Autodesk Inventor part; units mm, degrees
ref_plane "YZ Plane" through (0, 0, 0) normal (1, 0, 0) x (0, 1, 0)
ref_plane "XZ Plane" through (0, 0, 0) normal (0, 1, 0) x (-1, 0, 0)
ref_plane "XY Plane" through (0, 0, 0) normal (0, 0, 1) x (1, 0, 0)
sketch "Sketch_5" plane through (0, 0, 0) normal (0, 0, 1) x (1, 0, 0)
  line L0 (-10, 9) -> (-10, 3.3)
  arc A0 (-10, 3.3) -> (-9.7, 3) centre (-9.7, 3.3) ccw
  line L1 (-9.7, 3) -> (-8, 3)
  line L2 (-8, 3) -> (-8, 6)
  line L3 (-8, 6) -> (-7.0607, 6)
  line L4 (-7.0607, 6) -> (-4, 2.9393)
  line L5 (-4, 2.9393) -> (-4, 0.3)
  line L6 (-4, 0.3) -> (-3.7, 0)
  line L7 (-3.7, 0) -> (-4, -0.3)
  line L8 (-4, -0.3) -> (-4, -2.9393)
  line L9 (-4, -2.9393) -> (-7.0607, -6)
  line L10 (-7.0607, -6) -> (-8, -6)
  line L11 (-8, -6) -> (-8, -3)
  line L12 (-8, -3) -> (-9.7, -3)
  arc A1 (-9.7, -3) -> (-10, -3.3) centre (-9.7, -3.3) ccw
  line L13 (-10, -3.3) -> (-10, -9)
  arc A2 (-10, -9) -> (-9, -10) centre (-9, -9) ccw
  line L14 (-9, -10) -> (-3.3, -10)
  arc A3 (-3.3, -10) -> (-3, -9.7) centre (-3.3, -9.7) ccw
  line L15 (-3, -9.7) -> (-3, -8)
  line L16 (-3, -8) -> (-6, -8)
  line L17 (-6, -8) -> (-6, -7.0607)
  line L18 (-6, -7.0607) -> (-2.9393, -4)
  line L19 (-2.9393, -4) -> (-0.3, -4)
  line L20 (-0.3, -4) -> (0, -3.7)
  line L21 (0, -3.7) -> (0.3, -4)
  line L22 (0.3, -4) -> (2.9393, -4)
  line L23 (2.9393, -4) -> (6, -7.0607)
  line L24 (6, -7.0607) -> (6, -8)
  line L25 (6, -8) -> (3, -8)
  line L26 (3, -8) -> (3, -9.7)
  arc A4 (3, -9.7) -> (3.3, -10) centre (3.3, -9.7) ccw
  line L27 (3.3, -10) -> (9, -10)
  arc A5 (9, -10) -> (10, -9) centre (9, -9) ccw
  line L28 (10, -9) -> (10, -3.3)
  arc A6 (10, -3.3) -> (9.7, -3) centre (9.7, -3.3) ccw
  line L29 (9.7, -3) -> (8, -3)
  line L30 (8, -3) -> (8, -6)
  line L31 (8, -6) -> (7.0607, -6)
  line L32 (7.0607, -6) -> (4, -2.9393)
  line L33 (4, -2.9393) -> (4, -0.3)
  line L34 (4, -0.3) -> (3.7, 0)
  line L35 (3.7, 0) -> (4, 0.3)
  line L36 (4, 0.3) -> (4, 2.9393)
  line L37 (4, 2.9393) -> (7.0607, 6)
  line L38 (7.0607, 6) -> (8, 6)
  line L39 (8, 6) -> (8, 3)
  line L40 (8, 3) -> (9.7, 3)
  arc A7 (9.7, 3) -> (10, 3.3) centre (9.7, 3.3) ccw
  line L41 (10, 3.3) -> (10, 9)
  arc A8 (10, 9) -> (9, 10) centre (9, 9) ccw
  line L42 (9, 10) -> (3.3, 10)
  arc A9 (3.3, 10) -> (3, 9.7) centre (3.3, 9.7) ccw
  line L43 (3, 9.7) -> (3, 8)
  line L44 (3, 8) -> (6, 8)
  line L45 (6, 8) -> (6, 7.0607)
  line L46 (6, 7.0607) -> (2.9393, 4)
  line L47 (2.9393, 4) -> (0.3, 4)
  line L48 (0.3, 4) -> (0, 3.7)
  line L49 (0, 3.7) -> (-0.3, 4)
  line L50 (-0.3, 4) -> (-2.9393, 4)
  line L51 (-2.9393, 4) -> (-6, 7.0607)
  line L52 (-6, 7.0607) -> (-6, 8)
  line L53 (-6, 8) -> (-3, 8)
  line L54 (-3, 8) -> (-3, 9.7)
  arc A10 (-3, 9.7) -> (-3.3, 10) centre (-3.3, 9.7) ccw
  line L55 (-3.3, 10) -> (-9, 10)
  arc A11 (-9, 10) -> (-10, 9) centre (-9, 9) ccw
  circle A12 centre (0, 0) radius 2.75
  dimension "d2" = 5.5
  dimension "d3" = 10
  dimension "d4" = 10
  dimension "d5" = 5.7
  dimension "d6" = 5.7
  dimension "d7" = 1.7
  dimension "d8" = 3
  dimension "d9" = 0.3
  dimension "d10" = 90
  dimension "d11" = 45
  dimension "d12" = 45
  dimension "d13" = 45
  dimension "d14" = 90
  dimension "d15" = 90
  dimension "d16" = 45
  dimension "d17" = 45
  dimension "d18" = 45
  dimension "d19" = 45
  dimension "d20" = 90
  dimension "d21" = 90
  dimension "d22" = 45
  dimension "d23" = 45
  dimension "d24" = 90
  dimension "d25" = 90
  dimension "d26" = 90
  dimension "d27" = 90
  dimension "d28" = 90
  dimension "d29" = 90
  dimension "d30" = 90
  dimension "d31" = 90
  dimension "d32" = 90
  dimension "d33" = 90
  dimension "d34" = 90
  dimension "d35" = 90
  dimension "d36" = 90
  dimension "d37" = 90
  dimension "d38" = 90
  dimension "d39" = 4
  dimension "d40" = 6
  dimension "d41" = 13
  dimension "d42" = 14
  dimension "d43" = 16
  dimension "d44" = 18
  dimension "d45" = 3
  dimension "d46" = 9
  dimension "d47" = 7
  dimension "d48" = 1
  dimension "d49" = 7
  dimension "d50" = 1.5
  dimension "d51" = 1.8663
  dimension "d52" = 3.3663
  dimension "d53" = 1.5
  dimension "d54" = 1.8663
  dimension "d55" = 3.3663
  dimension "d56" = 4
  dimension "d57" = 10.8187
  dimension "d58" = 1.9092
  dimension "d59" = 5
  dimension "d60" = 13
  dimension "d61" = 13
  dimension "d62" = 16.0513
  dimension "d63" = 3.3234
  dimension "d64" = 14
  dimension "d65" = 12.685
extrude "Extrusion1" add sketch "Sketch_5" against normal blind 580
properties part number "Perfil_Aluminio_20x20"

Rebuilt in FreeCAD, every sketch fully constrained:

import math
import FreeCAD as App
import Part
import Sketcher

V = App.Vector
Q = App.Units.Quantity

doc = App.newDocument("Part")
params = doc.addObject("Spreadsheet::Sheet", "Params")
for row, (alias, value) in enumerate([
    ("sketch1_radius", "1 mm"),
    ("sketch1_diameter", "5.5 mm"),
    ("sketch1_radius2", "0.3 mm"),
    ("sketch1_width", "3 mm"),
    ("sketch1_width2", "1.7 mm"),
    ("pad1_length", "580 mm"),
], start=1):
    params.set(f"A{row}", alias)
    params.set(f"B{row}", "=" + value)
    params.setAlias(f"B{row}", alias)

body = doc.addObject("PartDesign::Body", "Body")

# Sketch on XY plane
sketch1 = body.newObject("Sketcher::SketchObject", "Sketch")
sketch1.AttachmentSupport = (doc.getObject("XY_Plane"), [""])
sketch1.MapMode = "FlatFace"
sketch1.addGeometry([
    Part.ArcOfCircle(Part.Circle(V(-9, 9, 0), V(0, 0, 1), 1), math.radians(90), math.radians(180)),  # 0
    Part.LineSegment(V(-10, 9, 0), V(-10, 3.3, 0)),  # 1
    Part.ArcOfCircle(Part.Circle(V(-9.7, 3.3, 0), V(0, 0, 1), 0.3), math.radians(180), math.radians(270)),  # 2
    Part.LineSegment(V(-9.7, 3, 0), V(-8, 3, 0)),  # 3
    Part.LineSegment(V(-8, 3, 0), V(-8, 6, 0)),  # 4
    Part.LineSegment(V(-8, 6, 0), V(-7.0607, 6, 0)),  # 5
    Part.LineSegment(V(-7.0607, 6, 0), V(-4, 2.9393, 0)),  # 6
    Part.LineSegment(V(-4, 2.9393, 0), V(-4, 0.3, 0)),  # 7
    Part.LineSegment(V(-4, 0.3, 0), V(-3.7, 0, 0)),  # 8
    Part.LineSegment(V(-3.7, 0, 0), V(-4, -0.3, 0)),  # 9
    Part.LineSegment(V(-4, -0.3, 0), V(-4, -2.9393, 0)),  # 10
    Part.LineSegment(V(-4, -2.9393, 0), V(-7.0607, -6, 0)),  # 11
    Part.LineSegment(V(-7.0607, -6, 0), V(-8, -6, 0)),  # 12
    Part.LineSegment(V(-8, -6, 0), V(-8, -3, 0)),  # 13
    Part.LineSegment(V(-8, -3, 0), V(-9.7, -3, 0)),  # 14
    Part.ArcOfCircle(Part.Circle(V(-9.7, -3.3, 0), V(0, 0, 1), 0.3), math.radians(90), math.radians(180)),  # 15
    Part.LineSegment(V(-10, -3.3, 0), V(-10, -9, 0)),  # 16
    Part.ArcOfCircle(Part.Circle(V(-9, -9, 0), V(0, 0, 1), 1), math.radians(180), math.radians(270)),  # 17
    Part.LineSegment(V(-9, -10, 0), V(-3.3, -10, 0)),  # 18
    Part.ArcOfCircle(Part.Circle(V(-3.3, -9.7, 0), V(0, 0, 1), 0.3), math.radians(-90), math.radians(0)),  # 19
    Part.LineSegment(V(-3, -9.7, 0), V(-3, -8, 0)),  # 20
    Part.LineSegment(V(-3, -8, 0), V(-6, -8, 0)),  # 21
    Part.LineSegment(V(-6, -8, 0), V(-6, -7.0607, 0)),  # 22
    Part.LineSegment(V(-6, -7.0607, 0), V(-2.9393, -4, 0)),  # 23
    Part.LineSegment(V(-2.9393, -4, 0), V(-0.3, -4, 0)),  # 24
    Part.LineSegment(V(-0.3, -4, 0), V(0, -3.7, 0)),  # 25
    Part.LineSegment(V(0, -3.7, 0), V(0.3, -4, 0)),  # 26
    Part.LineSegment(V(0.3, -4, 0), V(2.9393, -4, 0)),  # 27
    Part.LineSegment(V(2.9393, -4, 0), V(6, -7.0607, 0)),  # 28
    Part.LineSegment(V(6, -7.0607, 0), V(6, -8, 0)),  # 29
    Part.LineSegment(V(6, -8, 0), V(3, -8, 0)),  # 30
    Part.LineSegment(V(3, -8, 0), V(3, -9.7, 0)),  # 31
    Part.ArcOfCircle(Part.Circle(V(3.3, -9.7, 0), V(0, 0, 1), 0.3), math.radians(180), math.radians(270)),  # 32
    Part.LineSegment(V(3.3, -10, 0), V(9, -10, 0)),  # 33
    Part.ArcOfCircle(Part.Circle(V(9, -9, 0), V(0, 0, 1), 1), math.radians(-90), math.radians(0)),  # 34
    Part.LineSegment(V(10, -9, 0), V(10, -3.3, 0)),  # 35
    Part.ArcOfCircle(Part.Circle(V(9.7, -3.3, 0), V(0, 0, 1), 0.3), math.radians(0), math.radians(90)),  # 36
    Part.LineSegment(V(9.7, -3, 0), V(8, -3, 0)),  # 37
    Part.LineSegment(V(8, -3, 0), V(8, -6, 0)),  # 38
    Part.LineSegment(V(8, -6, 0), V(7.0607, -6, 0)),  # 39
    Part.LineSegment(V(7.0607, -6, 0), V(4, -2.9393, 0)),  # 40
    Part.LineSegment(V(4, -2.9393, 0), V(4, -0.3, 0)),  # 41
    Part.LineSegment(V(4, -0.3, 0), V(3.7, 0, 0)),  # 42
    Part.LineSegment(V(3.7, 0, 0), V(4, 0.3, 0)),  # 43
    Part.LineSegment(V(4, 0.3, 0), V(4, 2.9393, 0)),  # 44
    Part.LineSegment(V(4, 2.9393, 0), V(7.0607, 6, 0)),  # 45
    Part.LineSegment(V(7.0607, 6, 0), V(8, 6, 0)),  # 46
    Part.LineSegment(V(8, 6, 0), V(8, 3, 0)),  # 47
    Part.LineSegment(V(8, 3, 0), V(9.7, 3, 0)),  # 48
    Part.ArcOfCircle(Part.Circle(V(9.7, 3.3, 0), V(0, 0, 1), 0.3), math.radians(-90), math.radians(0)),  # 49
    Part.LineSegment(V(10, 3.3, 0), V(10, 9, 0)),  # 50
    Part.ArcOfCircle(Part.Circle(V(9, 9, 0), V(0, 0, 1), 1), math.radians(0), math.radians(90)),  # 51
    Part.LineSegment(V(9, 10, 0), V(3.3, 10, 0)),  # 52
    Part.ArcOfCircle(Part.Circle(V(3.3, 9.7, 0), V(0, 0, 1), 0.3), math.radians(90), math.radians(180)),  # 53
    Part.LineSegment(V(3, 9.7, 0), V(3, 8, 0)),  # 54
    Part.LineSegment(V(3, 8, 0), V(6, 8, 0)),  # 55
    Part.LineSegment(V(6, 8, 0), V(6, 7.0607, 0)),  # 56
    Part.LineSegment(V(6, 7.0607, 0), V(2.9393, 4, 0)),  # 57
    Part.LineSegment(V(2.9393, 4, 0), V(0.3, 4, 0)),  # 58
    Part.LineSegment(V(0.3, 4, 0), V(0, 3.7, 0)),  # 59
    Part.LineSegment(V(0, 3.7, 0), V(-0.3, 4, 0)),  # 60
    Part.LineSegment(V(-0.3, 4, 0), V(-2.9393, 4, 0)),  # 61
    Part.LineSegment(V(-2.9393, 4, 0), V(-6, 7.0607, 0)),  # 62
    Part.LineSegment(V(-6, 7.0607, 0), V(-6, 8, 0)),  # 63
    Part.LineSegment(V(-6, 8, 0), V(-3, 8, 0)),  # 64
    Part.LineSegment(V(-3, 8, 0), V(-3, 9.7, 0)),  # 65
    Part.ArcOfCircle(Part.Circle(V(-3.3, 9.7, 0), V(0, 0, 1), 0.3), math.radians(0), math.radians(90)),  # 66
    Part.LineSegment(V(-3.3, 10, 0), V(-9, 10, 0)),  # 67
    Part.Circle(V(0, 0, 0), V(0, 0, 1), 2.75),  # 68
], False)
sketch1.addConstraint([
    Sketcher.Constraint("Tangent", 0, 2, 1, 1),
    Sketcher.Constraint("Tangent", 1, 2, 2, 1),
    Sketcher.Constraint("Tangent", 2, 2, 3, 1),
    Sketcher.Constraint("Coincident", 3, 2, 4, 1),
    Sketcher.Constraint("Coincident", 4, 2, 5, 1),
    Sketcher.Constraint("Coincident", 5, 2, 6, 1),
    Sketcher.Constraint("Coincident", 6, 2, 7, 1),
    Sketcher.Constraint("Coincident", 7, 2, 8, 1),
    Sketcher.Constraint("Coincident", 8, 2, 9, 1),
    Sketcher.Constraint("Coincident", 9, 2, 10, 1),
    Sketcher.Constraint("Coincident", 10, 2, 11, 1),
    Sketcher.Constraint("Coincident", 11, 2, 12, 1),
    Sketcher.Constraint("Coincident", 12, 2, 13, 1),
    Sketcher.Constraint("Coincident", 13, 2, 14, 1),
    Sketcher.Constraint("Tangent", 14, 2, 15, 1),
    Sketcher.Constraint("Tangent", 15, 2, 16, 1),
    Sketcher.Constraint("Tangent", 16, 2, 17, 1),
    Sketcher.Constraint("Tangent", 17, 2, 18, 1),
    Sketcher.Constraint("Tangent", 18, 2, 19, 1),
    Sketcher.Constraint("Tangent", 19, 2, 20, 1),
    Sketcher.Constraint("Coincident", 20, 2, 21, 1),
    Sketcher.Constraint("Coincident", 21, 2, 22, 1),
    Sketcher.Constraint("Coincident", 22, 2, 23, 1),
    Sketcher.Constraint("Coincident", 23, 2, 24, 1),
    Sketcher.Constraint("Coincident", 24, 2, 25, 1),
    Sketcher.Constraint("Coincident", 25, 2, 26, 1),
    Sketcher.Constraint("Coincident", 26, 2, 27, 1),
    Sketcher.Constraint("Coincident", 27, 2, 28, 1),
    Sketcher.Constraint("Coincident", 28, 2, 29, 1),
    Sketcher.Constraint("Coincident", 29, 2, 30, 1),
    Sketcher.Constraint("Coincident", 30, 2, 31, 1),
    Sketcher.Constraint("Tangent", 31, 2, 32, 1),
    Sketcher.Constraint("Tangent", 32, 2, 33, 1),
    Sketcher.Constraint("Tangent", 33, 2, 34, 1),
    Sketcher.Constraint("Tangent", 34, 2, 35, 1),
    Sketcher.Constraint("Tangent", 35, 2, 36, 1),
    Sketcher.Constraint("Tangent", 36, 2, 37, 1),
    Sketcher.Constraint("Coincident", 37, 2, 38, 1),
    Sketcher.Constraint("Coincident", 38, 2, 39, 1),
    Sketcher.Constraint("Coincident", 39, 2, 40, 1),
    Sketcher.Constraint("Coincident", 40, 2, 41, 1),
    Sketcher.Constraint("Coincident", 41, 2, 42, 1),
    Sketcher.Constraint("Coincident", 42, 2, 43, 1),
    Sketcher.Constraint("Coincident", 43, 2, 44, 1),
    Sketcher.Constraint("Coincident", 44, 2, 45, 1),
    Sketcher.Constraint("Coincident", 45, 2, 46, 1),
    Sketcher.Constraint("Coincident", 46, 2, 47, 1),
    Sketcher.Constraint("Coincident", 47, 2, 48, 1),
    Sketcher.Constraint("Tangent", 48, 2, 49, 1),
    Sketcher.Constraint("Tangent", 49, 2, 50, 1),
    Sketcher.Constraint("Tangent", 50, 2, 51, 1),
    Sketcher.Constraint("Tangent", 51, 2, 52, 1),
    Sketcher.Constraint("Tangent", 52, 2, 53, 1),
    Sketcher.Constraint("Tangent", 53, 2, 54, 1),
    Sketcher.Constraint("Coincident", 54, 2, 55, 1),
    Sketcher.Constraint("Coincident", 55, 2, 56, 1),
    Sketcher.Constraint("Coincident", 56, 2, 57, 1),
    Sketcher.Constraint("Coincident", 57, 2, 58, 1),
    Sketcher.Constraint("Coincident", 58, 2, 59, 1),
    Sketcher.Constraint("Coincident", 59, 2, 60, 1),
    Sketcher.Constraint("Coincident", 60, 2, 61, 1),
    Sketcher.Constraint("Coincident", 61, 2, 62, 1),
    Sketcher.Constraint("Coincident", 62, 2, 63, 1),
    Sketcher.Constraint("Coincident", 63, 2, 64, 1),
    Sketcher.Constraint("Coincident", 64, 2, 65, 1),
    Sketcher.Constraint("Tangent", 65, 2, 66, 1),
    Sketcher.Constraint("Tangent", 66, 2, 67, 1),
    Sketcher.Constraint("Tangent", 67, 2, 0, 1),
    Sketcher.Constraint("Vertical", 1),
    Sketcher.Constraint("Horizontal", 3),
    Sketcher.Constraint("Vertical", 4),
    Sketcher.Constraint("Horizontal", 5),
    Sketcher.Constraint("Vertical", 7),
    Sketcher.Constraint("Vertical", 10),
    Sketcher.Constraint("Horizontal", 12),
    Sketcher.Constraint("Vertical", 13),
    Sketcher.Constraint("Horizontal", 14),
    Sketcher.Constraint("Vertical", 16),
    Sketcher.Constraint("Horizontal", 18),
    Sketcher.Constraint("Vertical", 20),
    Sketcher.Constraint("Horizontal", 21),
    Sketcher.Constraint("Vertical", 22),
    Sketcher.Constraint("Horizontal", 24),
    Sketcher.Constraint("Horizontal", 27),
    Sketcher.Constraint("Vertical", 29),
    Sketcher.Constraint("Horizontal", 30),
    Sketcher.Constraint("Vertical", 31),
    Sketcher.Constraint("Horizontal", 33),
    Sketcher.Constraint("Vertical", 35),
    Sketcher.Constraint("Horizontal", 37),
    Sketcher.Constraint("Vertical", 38),
    Sketcher.Constraint("Horizontal", 39),
    Sketcher.Constraint("Vertical", 41),
    Sketcher.Constraint("Vertical", 44),
    Sketcher.Constraint("Horizontal", 46),
    Sketcher.Constraint("Vertical", 47),
    Sketcher.Constraint("Horizontal", 48),
    Sketcher.Constraint("Vertical", 50),
    Sketcher.Constraint("Horizontal", 52),
    Sketcher.Constraint("Vertical", 54),
    Sketcher.Constraint("Horizontal", 55),
    Sketcher.Constraint("Vertical", 56),
    Sketcher.Constraint("Horizontal", 58),
    Sketcher.Constraint("Horizontal", 61),
    Sketcher.Constraint("Vertical", 63),
    Sketcher.Constraint("Horizontal", 64),
    Sketcher.Constraint("Vertical", 65),
    Sketcher.Constraint("Horizontal", 67),
    Sketcher.Constraint("Coincident", 68, 3, -1, 1),
    Sketcher.Constraint("Equal", 2, 15),
    Sketcher.Constraint("Equal", 0, 17),
    Sketcher.Constraint("Equal", 15, 19),
    Sketcher.Constraint("Equal", 19, 32),
    Sketcher.Constraint("Equal", 17, 34),
    Sketcher.Constraint("Equal", 32, 36),
    Sketcher.Constraint("Equal", 36, 49),
    Sketcher.Constraint("Equal", 34, 51),
    Sketcher.Constraint("Equal", 49, 53),
    Sketcher.Constraint("Equal", 53, 66),
    Sketcher.Constraint("Symmetric", 0, 3, 34, 3, -1, 1),
    Sketcher.Constraint("Symmetric", 15, 3, 49, 3, -1, 1),
    Sketcher.Constraint("Symmetric", 19, 3, 53, 3, -1, 1),
    Sketcher.Constraint("Symmetric", 3, 2, 37, 2, -1, 1),
    Sketcher.Constraint("Symmetric", 5, 2, 39, 2, -1, 1),
    Sketcher.Constraint("Symmetric", 6, 2, 40, 2, -1, 1),
    Sketcher.Constraint("Symmetric", 8, 2, 42, 2, -1, 1),
    Sketcher.Constraint("Symmetric", 9, 2, 43, 2, -1, 1),
    Sketcher.Constraint("Symmetric", 11, 2, 45, 2, -1, 1),
    Sketcher.Constraint("Symmetric", 21, 2, 55, 2, -1, 1),
    Sketcher.Constraint("Symmetric", 23, 2, 57, 2, -1, 1),
    Sketcher.Constraint("Symmetric", 25, 2, 59, 2, -1, 1),
    Sketcher.Constraint("Symmetric", 26, 2, 60, 2, -1, 1),
    Sketcher.Constraint("Symmetric", 28, 2, 62, 2, -1, 1),
    Sketcher.Constraint("Symmetric", 30, 2, 64, 2, -1, 1),
    Sketcher.Constraint("Symmetric", 19, 3, 32, 3, -2),
    Sketcher.Constraint("Symmetric", 15, 3, 36, 3, -2),
    Sketcher.Constraint("Symmetric", 24, 2, 26, 2, -2),
    Sketcher.Constraint("Symmetric", 22, 2, 28, 2, -2),
    Sketcher.Constraint("Symmetric", 12, 2, 38, 2, -2),
    Sketcher.Constraint("Symmetric", 10, 2, 40, 2, -2),
    Sketcher.Constraint("PointOnObject", 8, 2, -1),
    Sketcher.Constraint("PointOnObject", 25, 2, -2),
    Sketcher.Constraint("Parallel", 6, 8),
    Sketcher.Constraint("Perpendicular", 8, 9),
    Sketcher.Constraint("Parallel", 9, 11),
    Sketcher.Constraint("Parallel", 11, 23),
    Sketcher.Constraint("Parallel", 23, 25),
    Sketcher.Constraint("Perpendicular", 25, 26),
    Sketcher.Constraint("Parallel", 26, 28),
    Sketcher.Constraint("Parallel", 40, 42),
    Sketcher.Constraint("Parallel", 43, 45),
    Sketcher.Constraint("Parallel", 45, 57),
    Sketcher.Constraint("Parallel", 57, 59),
    Sketcher.Constraint("Parallel", 60, 62),
    Sketcher.Constraint("Horizontal", 21, 2, 29, 2),
    Sketcher.Constraint("Vertical", 38, 2, 46, 2),
    Sketcher.Constraint("Equal", 67, 1),
    Sketcher.Constraint("Equal", 64, 4),
    Sketcher.Constraint("Equal", 61, 7),
    Sketcher.Constraint("Equal", 48, 20),
    Sketcher.Constraint("Equal", 46, 22),
    Sketcher.Constraint("Equal", 11, 23),
    Sketcher.Constraint("Equal", 9, 25),
    Sketcher.Constraint("Radius", 0, Q("1 mm")),
    Sketcher.Constraint("Diameter", 68, Q("5.5 mm")),
    Sketcher.Constraint("Radius", 2, Q("0.3 mm")),
    Sketcher.Constraint("DistanceX", 21, 2, 21, 1, Q("3 mm")),
    Sketcher.Constraint("DistanceX", 3, 1, 3, 2, Q("1.7 mm")),
    Sketcher.Constraint("DistanceX", 18, 1, 18, 2, Q("5.7 mm")),
    Sketcher.Constraint("DistanceX", 0, 3, -1, 1, Q("9 mm")),
    Sketcher.Constraint("DistanceX", 6, 2, -1, 1, Q("4 mm")),
    Sketcher.Constraint("DistanceY", -1, 1, 7, 2, Q("0.3 mm")),
    Sketcher.Constraint("DistanceX", 5, 1, 5, 2, Q("0.9393 mm")),
])
sketch1.setExpression("Constraints[163]", "Params.sketch1_radius")
sketch1.setExpression("Constraints[164]", "Params.sketch1_diameter")
sketch1.setExpression("Constraints[165]", "Params.sketch1_radius2")
sketch1.setExpression("Constraints[166]", "Params.sketch1_width")
sketch1.setExpression("Constraints[167]", "Params.sketch1_width2")
pad1 = body.newObject("PartDesign::Pad", "Pad")
pad1.Profile = sketch1
pad1.setExpression("Length", "Params.pad1_length")
pad1.Reversed = True

doc.recompute()
